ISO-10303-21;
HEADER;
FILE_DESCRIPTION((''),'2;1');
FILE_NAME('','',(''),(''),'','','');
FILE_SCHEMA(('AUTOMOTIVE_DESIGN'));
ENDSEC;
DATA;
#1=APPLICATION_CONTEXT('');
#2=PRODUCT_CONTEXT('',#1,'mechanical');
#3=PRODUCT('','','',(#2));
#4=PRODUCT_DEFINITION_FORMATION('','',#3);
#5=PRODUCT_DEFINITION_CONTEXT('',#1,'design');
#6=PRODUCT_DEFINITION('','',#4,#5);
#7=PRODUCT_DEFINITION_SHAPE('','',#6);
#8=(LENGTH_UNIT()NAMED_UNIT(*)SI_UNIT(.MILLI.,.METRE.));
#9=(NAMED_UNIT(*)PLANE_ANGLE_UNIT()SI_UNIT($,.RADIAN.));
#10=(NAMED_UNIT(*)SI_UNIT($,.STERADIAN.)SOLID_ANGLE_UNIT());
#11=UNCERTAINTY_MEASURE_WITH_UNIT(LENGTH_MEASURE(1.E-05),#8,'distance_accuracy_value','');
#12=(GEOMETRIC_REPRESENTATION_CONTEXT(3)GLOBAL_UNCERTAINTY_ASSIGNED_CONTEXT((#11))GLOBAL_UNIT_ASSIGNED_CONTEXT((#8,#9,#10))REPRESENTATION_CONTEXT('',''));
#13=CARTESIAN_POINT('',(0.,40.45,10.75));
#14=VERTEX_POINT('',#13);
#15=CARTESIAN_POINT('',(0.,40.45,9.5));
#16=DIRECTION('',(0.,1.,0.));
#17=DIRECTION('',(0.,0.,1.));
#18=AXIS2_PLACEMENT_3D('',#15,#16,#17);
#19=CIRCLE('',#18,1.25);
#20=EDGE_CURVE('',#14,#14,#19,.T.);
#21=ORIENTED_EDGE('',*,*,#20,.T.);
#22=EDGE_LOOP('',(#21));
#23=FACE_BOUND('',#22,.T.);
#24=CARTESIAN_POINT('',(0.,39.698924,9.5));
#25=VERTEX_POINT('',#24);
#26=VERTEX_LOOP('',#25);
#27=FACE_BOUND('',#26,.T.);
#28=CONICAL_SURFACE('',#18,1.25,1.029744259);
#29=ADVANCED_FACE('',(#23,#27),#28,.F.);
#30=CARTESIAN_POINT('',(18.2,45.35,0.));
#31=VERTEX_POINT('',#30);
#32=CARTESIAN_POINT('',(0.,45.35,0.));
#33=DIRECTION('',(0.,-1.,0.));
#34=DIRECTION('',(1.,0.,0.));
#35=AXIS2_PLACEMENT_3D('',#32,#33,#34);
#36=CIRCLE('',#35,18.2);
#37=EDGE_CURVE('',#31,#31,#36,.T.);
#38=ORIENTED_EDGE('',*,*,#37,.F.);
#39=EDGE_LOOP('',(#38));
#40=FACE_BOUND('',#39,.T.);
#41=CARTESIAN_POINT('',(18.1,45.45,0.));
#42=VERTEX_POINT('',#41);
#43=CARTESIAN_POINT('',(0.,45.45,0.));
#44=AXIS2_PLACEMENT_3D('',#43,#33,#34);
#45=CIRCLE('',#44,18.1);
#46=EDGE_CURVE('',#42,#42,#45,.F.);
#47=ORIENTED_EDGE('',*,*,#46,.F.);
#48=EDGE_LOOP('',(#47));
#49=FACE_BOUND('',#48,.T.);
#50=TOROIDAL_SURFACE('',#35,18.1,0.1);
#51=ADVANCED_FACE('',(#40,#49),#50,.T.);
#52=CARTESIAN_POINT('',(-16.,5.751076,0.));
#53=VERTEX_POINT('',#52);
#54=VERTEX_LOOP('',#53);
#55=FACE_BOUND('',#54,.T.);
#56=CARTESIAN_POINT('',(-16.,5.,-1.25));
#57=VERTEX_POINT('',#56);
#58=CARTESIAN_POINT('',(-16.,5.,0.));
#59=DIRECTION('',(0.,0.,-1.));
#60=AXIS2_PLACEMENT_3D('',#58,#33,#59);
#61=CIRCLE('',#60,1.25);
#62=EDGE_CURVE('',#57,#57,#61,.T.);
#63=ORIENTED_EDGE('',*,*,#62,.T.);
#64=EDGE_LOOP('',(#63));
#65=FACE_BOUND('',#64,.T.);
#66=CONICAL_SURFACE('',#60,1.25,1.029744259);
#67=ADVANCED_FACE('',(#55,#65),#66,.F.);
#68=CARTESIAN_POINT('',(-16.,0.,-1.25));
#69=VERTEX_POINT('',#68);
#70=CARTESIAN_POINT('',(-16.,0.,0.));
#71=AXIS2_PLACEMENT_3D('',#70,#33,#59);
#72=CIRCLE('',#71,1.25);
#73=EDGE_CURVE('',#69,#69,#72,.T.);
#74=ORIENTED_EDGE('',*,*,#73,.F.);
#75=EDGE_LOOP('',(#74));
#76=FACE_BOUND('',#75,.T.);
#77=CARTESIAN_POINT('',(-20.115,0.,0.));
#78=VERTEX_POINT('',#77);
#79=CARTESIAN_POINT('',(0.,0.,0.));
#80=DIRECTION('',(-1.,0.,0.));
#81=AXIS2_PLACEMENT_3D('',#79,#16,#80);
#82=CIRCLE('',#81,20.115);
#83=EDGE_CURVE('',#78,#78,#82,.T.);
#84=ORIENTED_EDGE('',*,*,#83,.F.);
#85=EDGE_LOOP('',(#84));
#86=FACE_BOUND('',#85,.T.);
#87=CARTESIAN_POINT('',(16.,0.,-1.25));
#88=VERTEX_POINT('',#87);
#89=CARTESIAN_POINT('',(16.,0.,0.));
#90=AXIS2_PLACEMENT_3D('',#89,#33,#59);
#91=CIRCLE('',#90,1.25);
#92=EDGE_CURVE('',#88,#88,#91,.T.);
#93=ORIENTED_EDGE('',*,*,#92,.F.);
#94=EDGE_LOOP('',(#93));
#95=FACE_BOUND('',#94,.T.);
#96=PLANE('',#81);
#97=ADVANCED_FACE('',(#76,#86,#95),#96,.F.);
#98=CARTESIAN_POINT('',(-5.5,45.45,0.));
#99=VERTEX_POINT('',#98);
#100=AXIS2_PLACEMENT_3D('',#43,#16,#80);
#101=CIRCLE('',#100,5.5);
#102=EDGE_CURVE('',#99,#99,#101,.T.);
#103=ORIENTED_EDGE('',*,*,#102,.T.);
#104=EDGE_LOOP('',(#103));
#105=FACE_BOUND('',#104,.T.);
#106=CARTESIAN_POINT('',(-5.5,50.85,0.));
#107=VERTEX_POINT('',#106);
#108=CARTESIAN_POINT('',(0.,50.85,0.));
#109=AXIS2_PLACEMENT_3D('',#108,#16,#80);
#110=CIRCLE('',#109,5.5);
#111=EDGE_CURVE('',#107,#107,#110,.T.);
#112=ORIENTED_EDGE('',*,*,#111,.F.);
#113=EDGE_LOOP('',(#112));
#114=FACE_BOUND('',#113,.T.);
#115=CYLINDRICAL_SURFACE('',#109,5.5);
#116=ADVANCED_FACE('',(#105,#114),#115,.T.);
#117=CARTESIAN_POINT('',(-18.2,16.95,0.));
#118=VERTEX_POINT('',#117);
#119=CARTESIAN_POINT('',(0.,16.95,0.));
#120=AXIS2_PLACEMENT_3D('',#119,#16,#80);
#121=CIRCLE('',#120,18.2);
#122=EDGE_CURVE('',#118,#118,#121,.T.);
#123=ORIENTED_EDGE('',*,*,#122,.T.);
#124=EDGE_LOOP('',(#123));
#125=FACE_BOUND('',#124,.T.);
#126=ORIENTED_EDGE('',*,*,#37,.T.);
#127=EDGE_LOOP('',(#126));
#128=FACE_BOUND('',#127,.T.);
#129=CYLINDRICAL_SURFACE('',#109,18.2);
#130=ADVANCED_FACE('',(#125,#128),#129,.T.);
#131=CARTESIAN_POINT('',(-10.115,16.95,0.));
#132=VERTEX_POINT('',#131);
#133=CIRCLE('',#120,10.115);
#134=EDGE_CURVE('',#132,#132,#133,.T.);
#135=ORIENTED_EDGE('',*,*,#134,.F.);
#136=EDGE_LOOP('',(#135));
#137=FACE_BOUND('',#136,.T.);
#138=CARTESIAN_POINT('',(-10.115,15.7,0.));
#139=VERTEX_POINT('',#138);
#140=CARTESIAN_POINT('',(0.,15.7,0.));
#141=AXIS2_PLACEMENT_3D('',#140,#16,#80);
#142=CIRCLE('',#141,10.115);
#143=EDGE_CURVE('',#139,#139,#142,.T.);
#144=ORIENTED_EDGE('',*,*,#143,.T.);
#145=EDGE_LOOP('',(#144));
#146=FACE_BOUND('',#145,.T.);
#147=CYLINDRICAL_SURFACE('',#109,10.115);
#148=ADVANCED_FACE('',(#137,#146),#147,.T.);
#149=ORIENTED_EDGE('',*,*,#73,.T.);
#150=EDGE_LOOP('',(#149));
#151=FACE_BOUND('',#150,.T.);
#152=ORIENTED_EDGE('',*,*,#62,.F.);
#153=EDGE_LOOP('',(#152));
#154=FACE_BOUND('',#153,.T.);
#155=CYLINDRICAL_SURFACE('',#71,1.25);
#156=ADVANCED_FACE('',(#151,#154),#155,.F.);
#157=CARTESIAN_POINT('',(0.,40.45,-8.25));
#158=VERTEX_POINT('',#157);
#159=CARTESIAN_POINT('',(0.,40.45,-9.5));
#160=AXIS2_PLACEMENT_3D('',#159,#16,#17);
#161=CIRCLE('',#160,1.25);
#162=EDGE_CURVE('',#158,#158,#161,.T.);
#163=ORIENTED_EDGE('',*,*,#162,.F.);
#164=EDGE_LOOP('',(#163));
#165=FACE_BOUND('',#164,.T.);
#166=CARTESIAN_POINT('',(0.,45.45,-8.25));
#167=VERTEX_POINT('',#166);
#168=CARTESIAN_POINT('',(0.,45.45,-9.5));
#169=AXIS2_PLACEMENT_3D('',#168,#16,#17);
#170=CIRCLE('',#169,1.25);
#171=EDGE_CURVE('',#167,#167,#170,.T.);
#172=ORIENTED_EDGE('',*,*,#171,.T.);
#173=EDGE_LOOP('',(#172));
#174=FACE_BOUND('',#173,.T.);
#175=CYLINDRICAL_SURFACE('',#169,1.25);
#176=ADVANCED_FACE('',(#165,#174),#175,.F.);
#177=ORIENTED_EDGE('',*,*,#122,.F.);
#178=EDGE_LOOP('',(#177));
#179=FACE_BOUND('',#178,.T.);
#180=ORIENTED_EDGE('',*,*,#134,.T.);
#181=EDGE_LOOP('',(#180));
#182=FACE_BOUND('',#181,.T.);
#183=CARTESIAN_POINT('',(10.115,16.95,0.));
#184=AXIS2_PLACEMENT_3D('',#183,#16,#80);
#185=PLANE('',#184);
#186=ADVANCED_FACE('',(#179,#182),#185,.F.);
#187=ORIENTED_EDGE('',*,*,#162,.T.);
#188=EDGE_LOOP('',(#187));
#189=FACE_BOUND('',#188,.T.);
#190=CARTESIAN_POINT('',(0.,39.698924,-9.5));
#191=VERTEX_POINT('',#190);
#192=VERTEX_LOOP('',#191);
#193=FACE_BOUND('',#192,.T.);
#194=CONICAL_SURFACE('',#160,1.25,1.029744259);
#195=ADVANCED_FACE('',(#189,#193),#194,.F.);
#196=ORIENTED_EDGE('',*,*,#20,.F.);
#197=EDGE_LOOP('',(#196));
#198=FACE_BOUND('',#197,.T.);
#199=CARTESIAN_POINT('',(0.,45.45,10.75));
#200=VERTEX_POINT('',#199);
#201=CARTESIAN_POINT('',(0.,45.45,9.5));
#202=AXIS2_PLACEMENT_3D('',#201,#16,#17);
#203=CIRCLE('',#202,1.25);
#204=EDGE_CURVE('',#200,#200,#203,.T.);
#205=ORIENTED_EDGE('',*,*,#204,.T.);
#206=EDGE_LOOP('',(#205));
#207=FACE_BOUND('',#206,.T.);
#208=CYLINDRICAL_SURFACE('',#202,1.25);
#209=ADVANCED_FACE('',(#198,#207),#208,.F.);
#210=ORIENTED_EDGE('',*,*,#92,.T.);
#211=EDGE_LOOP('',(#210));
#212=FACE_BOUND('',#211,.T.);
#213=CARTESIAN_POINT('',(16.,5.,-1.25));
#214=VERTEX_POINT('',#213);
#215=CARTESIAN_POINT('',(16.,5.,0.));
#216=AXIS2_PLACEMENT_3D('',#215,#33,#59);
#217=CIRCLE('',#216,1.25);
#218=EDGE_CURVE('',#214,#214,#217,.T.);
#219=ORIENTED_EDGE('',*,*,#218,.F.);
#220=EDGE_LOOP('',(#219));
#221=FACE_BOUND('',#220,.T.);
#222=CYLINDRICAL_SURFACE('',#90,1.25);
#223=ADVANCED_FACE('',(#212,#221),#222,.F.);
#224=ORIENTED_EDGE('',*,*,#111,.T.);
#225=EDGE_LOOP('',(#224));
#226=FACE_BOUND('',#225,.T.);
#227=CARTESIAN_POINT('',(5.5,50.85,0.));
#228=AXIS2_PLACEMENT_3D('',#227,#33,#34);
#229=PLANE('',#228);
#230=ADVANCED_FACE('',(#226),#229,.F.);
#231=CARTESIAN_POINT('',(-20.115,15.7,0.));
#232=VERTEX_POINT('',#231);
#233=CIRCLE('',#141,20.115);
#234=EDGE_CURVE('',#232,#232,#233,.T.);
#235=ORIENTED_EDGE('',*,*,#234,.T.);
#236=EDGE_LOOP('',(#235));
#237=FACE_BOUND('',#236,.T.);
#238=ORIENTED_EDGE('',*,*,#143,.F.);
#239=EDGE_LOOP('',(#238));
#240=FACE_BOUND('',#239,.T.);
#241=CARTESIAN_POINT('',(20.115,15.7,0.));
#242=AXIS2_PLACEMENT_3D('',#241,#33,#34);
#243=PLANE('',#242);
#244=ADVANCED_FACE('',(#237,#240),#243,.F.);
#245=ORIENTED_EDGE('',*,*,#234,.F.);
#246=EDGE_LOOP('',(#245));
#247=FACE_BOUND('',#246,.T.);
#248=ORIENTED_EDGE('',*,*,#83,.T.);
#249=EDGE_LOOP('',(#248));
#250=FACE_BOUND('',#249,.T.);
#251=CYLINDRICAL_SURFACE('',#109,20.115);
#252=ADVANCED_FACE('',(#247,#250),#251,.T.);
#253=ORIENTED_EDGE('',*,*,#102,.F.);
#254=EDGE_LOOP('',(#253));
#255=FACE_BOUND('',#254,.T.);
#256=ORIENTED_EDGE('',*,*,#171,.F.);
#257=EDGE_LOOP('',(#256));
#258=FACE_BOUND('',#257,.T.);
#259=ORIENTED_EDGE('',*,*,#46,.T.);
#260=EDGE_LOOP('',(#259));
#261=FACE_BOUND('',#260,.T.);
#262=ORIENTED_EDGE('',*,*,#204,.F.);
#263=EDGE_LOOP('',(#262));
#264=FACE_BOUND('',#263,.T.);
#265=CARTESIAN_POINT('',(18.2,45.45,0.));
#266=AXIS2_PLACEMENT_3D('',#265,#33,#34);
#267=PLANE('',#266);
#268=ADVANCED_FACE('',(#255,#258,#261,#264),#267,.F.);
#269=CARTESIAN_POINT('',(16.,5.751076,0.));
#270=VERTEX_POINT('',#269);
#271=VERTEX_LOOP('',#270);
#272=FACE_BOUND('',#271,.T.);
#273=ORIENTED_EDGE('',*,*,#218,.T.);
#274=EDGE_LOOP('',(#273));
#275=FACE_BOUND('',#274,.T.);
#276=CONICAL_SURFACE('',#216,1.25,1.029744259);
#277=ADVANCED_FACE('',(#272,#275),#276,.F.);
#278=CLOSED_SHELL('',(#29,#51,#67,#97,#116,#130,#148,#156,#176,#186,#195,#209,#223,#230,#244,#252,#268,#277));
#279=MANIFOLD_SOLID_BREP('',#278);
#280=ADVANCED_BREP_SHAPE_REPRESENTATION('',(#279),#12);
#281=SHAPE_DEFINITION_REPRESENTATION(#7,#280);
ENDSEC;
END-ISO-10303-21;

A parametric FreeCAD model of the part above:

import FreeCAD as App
import Part
import Sketcher

V = App.Vector


def edges_at(feature, points):
    """Names of the edges that pass closest to the given points."""
    edges = feature.Shape.Edges
    near = lambda p: min(range(len(edges)), key=lambda i: edges[i].distToShape(Part.Vertex(*p))[0])
    return sorted({f"Edge{near(p) + 1}" for p in points})

doc = App.newDocument("Part")
body = doc.addObject("PartDesign::Body", "Body")

# Sketch on XY plane
sketch1 = body.newObject("Sketcher::SketchObject", "Sketch")
sketch1.AttachmentSupport = (doc.getObject("XY_Plane"), [""])
sketch1.MapMode = "FlatFace"
sketch1.addGeometry(Part.LineSegment(V(0, 0, 0), V(20.115, 0, 0)), False)
sketch1.addGeometry(Part.LineSegment(V(20.115, 0, 0), V(20.115, 15.7, 0)), False)
sketch1.addGeometry(Part.LineSegment(V(20.115, 15.7, 0), V(10.115, 15.7, 0)), False)
sketch1.addGeometry(Part.LineSegment(V(10.115, 15.7, 0), V(10.115, 16.95, 0)), False)
sketch1.addGeometry(Part.LineSegment(V(10.115, 16.95, 0), V(18.2, 16.95, 0)), False)
sketch1.addGeometry(Part.LineSegment(V(18.2, 16.95, 0), V(18.2, 45.45, 0)), False)
sketch1.addGeometry(Part.LineSegment(V(18.2, 45.45, 0), V(5.5, 45.45, 0)), False)
sketch1.addGeometry(Part.LineSegment(V(5.5, 45.45, 0), V(5.5, 50.85, 0)), False)
sketch1.addGeometry(Part.LineSegment(V(5.5, 50.85, 0), V(0, 50.85, 0)), False)
sketch1.addGeometry(Part.LineSegment(V(0, 50.85, 0), V(0, 0, 0)), False)
sketch1.addConstraint(Sketcher.Constraint("Coincident", 0, 2, 1, 1))
sketch1.addConstraint(Sketcher.Constraint("Coincident", 1, 2, 2, 1))
sketch1.addConstraint(Sketcher.Constraint("Coincident", 2, 2, 3, 1))
sketch1.addConstraint(Sketcher.Constraint("Coincident", 3, 2, 4, 1))
sketch1.addConstraint(Sketcher.Constraint("Coincident", 4, 2, 5, 1))
sketch1.addConstraint(Sketcher.Constraint("Coincident", 5, 2, 6, 1))
sketch1.addConstraint(Sketcher.Constraint("Coincident", 6, 2, 7, 1))
sketch1.addConstraint(Sketcher.Constraint("Coincident", 7, 2, 8, 1))
sketch1.addConstraint(Sketcher.Constraint("Coincident", 8, 2, 9, 1))
sketch1.addConstraint(Sketcher.Constraint("Coincident", 9, 2, 0, 1))
sketch1.addConstraint(Sketcher.Constraint("Horizontal", 0))
sketch1.addConstraint(Sketcher.Constraint("Vertical", 1))
sketch1.addConstraint(Sketcher.Constraint("Horizontal", 2))
sketch1.addConstraint(Sketcher.Constraint("Vertical", 3))
sketch1.addConstraint(Sketcher.Constraint("Horizontal", 4))
sketch1.addConstraint(Sketcher.Constraint("Vertical", 5))
sketch1.addConstraint(Sketcher.Constraint("Horizontal", 6))
sketch1.addConstraint(Sketcher.Constraint("Vertical", 7))
sketch1.addConstraint(Sketcher.Constraint("Horizontal", 8))
sketch1.addConstraint(Sketcher.Constraint("Vertical", 9))
sketch1.addConstraint(Sketcher.Constraint("Coincident", 9, 2, -1, 1))
sketch1.addConstraint(Sketcher.Constraint("DistanceX", 2, 2, 2, 1, 10.0))
sketch1.addConstraint(Sketcher.Constraint("DistanceX", 6, 2, 6, 1, 12.7))
sketch1.addConstraint(Sketcher.Constraint("DistanceX", 8, 2, 8, 1, 5.5))
sketch1.addConstraint(Sketcher.Constraint("DistanceY", 1, 1, 1, 2, 15.7))
sketch1.addConstraint(Sketcher.Constraint("DistanceY", 5, 1, 5, 2, 28.5))
sketch1.addConstraint(Sketcher.Constraint("DistanceY", 7, 1, 7, 2, 5.4))
sketch1.addConstraint(Sketcher.Constraint("DistanceY", 3, 1, 3, 2, 1.25))
sketch1.addConstraint(Sketcher.Constraint("DistanceX", 0, 1, 0, 2, 20.115))
revolution = body.newObject("PartDesign::Revolution", "Revolution")
revolution.Profile = sketch1
revolution.ReferenceAxis = (sketch1, ["V_Axis"])
revolution.Angle = 360

# Sketch on XZ plane
sketch2 = body.newObject("Sketcher::SketchObject", "Sketch001")
sketch2.AttachmentSupport = (doc.getObject("XZ_Plane"), [""])
sketch2.MapMode = "FlatFace"
sketch2.AttachmentOffset = App.Placement(V(0, 0, -45.45), App.Rotation())
sketch2.addGeometry(Part.Circle(V(0, -9.5, 0), V(0, 0, 1), 1.25), False)
sketch2.addGeometry(Part.Circle(V(0, 9.5, 0), V(0, 0, 1), 1.25), False)
sketch2.addConstraint(Sketcher.Constraint("Equal", 0, 1))
sketch2.addConstraint(Sketcher.Constraint("Symmetric", 0, 3, 1, 3, -1, 1))
sketch2.addConstraint(Sketcher.Constraint("PointOnObject", 0, 3, -2))
sketch2.addConstraint(Sketcher.Constraint("Diameter", 0, 2.5))
sketch2.addConstraint(Sketcher.Constraint("DistanceY", 0, 3, 1, 3, 19.0))
doc.recompute()
hole = body.newObject("PartDesign::Hole", "Hole")
hole.Profile = sketch2
hole.ThreadType = "None"
hole.Diameter = 2.5
hole.DepthType = "Dimension"
hole.Depth = 5
hole.DrillPoint = "Angled"
hole.DrillPointAngle = 118
hole.Reversed = True

# Sketch on XZ plane
sketch3 = body.newObject("Sketcher::SketchObject", "Sketch002")
sketch3.AttachmentSupport = (doc.getObject("XZ_Plane"), [""])
sketch3.MapMode = "FlatFace"
sketch3.addGeometry(Part.Circle(V(-16, 0, 0), V(0, 0, 1), 1.25), False)
sketch3.addGeometry(Part.Circle(V(16, 0, 0), V(0, 0, 1), 1.25), False)
sketch3.addConstraint(Sketcher.Constraint("Equal", 0, 1))
sketch3.addConstraint(Sketcher.Constraint("Symmetric", 0, 3, 1, 3, -1, 1))
sketch3.addConstraint(Sketcher.Constraint("PointOnObject", 0, 3, -1))
sketch3.addConstraint(Sketcher.Constraint("Diameter", 0, 2.5))
sketch3.addConstraint(Sketcher.Constraint("DistanceX", 0, 3, -1, 1, 16.0))
doc.recompute()
hole2 = body.newObject("PartDesign::Hole", "Hole001")
hole2.Profile = sketch3
hole2.ThreadType = "None"
hole2.Diameter = 2.5
hole2.DepthType = "Dimension"
hole2.Depth = 5
hole2.DrillPoint = "Angled"
hole2.DrillPointAngle = 118
doc.recompute()

fillet = body.newObject("PartDesign::Fillet", "Fillet")
fillet.Base = (hole2, edges_at(hole2, [(-18.2, 45.45, 0)]))
fillet.Radius = 0.1

doc.recompute()
